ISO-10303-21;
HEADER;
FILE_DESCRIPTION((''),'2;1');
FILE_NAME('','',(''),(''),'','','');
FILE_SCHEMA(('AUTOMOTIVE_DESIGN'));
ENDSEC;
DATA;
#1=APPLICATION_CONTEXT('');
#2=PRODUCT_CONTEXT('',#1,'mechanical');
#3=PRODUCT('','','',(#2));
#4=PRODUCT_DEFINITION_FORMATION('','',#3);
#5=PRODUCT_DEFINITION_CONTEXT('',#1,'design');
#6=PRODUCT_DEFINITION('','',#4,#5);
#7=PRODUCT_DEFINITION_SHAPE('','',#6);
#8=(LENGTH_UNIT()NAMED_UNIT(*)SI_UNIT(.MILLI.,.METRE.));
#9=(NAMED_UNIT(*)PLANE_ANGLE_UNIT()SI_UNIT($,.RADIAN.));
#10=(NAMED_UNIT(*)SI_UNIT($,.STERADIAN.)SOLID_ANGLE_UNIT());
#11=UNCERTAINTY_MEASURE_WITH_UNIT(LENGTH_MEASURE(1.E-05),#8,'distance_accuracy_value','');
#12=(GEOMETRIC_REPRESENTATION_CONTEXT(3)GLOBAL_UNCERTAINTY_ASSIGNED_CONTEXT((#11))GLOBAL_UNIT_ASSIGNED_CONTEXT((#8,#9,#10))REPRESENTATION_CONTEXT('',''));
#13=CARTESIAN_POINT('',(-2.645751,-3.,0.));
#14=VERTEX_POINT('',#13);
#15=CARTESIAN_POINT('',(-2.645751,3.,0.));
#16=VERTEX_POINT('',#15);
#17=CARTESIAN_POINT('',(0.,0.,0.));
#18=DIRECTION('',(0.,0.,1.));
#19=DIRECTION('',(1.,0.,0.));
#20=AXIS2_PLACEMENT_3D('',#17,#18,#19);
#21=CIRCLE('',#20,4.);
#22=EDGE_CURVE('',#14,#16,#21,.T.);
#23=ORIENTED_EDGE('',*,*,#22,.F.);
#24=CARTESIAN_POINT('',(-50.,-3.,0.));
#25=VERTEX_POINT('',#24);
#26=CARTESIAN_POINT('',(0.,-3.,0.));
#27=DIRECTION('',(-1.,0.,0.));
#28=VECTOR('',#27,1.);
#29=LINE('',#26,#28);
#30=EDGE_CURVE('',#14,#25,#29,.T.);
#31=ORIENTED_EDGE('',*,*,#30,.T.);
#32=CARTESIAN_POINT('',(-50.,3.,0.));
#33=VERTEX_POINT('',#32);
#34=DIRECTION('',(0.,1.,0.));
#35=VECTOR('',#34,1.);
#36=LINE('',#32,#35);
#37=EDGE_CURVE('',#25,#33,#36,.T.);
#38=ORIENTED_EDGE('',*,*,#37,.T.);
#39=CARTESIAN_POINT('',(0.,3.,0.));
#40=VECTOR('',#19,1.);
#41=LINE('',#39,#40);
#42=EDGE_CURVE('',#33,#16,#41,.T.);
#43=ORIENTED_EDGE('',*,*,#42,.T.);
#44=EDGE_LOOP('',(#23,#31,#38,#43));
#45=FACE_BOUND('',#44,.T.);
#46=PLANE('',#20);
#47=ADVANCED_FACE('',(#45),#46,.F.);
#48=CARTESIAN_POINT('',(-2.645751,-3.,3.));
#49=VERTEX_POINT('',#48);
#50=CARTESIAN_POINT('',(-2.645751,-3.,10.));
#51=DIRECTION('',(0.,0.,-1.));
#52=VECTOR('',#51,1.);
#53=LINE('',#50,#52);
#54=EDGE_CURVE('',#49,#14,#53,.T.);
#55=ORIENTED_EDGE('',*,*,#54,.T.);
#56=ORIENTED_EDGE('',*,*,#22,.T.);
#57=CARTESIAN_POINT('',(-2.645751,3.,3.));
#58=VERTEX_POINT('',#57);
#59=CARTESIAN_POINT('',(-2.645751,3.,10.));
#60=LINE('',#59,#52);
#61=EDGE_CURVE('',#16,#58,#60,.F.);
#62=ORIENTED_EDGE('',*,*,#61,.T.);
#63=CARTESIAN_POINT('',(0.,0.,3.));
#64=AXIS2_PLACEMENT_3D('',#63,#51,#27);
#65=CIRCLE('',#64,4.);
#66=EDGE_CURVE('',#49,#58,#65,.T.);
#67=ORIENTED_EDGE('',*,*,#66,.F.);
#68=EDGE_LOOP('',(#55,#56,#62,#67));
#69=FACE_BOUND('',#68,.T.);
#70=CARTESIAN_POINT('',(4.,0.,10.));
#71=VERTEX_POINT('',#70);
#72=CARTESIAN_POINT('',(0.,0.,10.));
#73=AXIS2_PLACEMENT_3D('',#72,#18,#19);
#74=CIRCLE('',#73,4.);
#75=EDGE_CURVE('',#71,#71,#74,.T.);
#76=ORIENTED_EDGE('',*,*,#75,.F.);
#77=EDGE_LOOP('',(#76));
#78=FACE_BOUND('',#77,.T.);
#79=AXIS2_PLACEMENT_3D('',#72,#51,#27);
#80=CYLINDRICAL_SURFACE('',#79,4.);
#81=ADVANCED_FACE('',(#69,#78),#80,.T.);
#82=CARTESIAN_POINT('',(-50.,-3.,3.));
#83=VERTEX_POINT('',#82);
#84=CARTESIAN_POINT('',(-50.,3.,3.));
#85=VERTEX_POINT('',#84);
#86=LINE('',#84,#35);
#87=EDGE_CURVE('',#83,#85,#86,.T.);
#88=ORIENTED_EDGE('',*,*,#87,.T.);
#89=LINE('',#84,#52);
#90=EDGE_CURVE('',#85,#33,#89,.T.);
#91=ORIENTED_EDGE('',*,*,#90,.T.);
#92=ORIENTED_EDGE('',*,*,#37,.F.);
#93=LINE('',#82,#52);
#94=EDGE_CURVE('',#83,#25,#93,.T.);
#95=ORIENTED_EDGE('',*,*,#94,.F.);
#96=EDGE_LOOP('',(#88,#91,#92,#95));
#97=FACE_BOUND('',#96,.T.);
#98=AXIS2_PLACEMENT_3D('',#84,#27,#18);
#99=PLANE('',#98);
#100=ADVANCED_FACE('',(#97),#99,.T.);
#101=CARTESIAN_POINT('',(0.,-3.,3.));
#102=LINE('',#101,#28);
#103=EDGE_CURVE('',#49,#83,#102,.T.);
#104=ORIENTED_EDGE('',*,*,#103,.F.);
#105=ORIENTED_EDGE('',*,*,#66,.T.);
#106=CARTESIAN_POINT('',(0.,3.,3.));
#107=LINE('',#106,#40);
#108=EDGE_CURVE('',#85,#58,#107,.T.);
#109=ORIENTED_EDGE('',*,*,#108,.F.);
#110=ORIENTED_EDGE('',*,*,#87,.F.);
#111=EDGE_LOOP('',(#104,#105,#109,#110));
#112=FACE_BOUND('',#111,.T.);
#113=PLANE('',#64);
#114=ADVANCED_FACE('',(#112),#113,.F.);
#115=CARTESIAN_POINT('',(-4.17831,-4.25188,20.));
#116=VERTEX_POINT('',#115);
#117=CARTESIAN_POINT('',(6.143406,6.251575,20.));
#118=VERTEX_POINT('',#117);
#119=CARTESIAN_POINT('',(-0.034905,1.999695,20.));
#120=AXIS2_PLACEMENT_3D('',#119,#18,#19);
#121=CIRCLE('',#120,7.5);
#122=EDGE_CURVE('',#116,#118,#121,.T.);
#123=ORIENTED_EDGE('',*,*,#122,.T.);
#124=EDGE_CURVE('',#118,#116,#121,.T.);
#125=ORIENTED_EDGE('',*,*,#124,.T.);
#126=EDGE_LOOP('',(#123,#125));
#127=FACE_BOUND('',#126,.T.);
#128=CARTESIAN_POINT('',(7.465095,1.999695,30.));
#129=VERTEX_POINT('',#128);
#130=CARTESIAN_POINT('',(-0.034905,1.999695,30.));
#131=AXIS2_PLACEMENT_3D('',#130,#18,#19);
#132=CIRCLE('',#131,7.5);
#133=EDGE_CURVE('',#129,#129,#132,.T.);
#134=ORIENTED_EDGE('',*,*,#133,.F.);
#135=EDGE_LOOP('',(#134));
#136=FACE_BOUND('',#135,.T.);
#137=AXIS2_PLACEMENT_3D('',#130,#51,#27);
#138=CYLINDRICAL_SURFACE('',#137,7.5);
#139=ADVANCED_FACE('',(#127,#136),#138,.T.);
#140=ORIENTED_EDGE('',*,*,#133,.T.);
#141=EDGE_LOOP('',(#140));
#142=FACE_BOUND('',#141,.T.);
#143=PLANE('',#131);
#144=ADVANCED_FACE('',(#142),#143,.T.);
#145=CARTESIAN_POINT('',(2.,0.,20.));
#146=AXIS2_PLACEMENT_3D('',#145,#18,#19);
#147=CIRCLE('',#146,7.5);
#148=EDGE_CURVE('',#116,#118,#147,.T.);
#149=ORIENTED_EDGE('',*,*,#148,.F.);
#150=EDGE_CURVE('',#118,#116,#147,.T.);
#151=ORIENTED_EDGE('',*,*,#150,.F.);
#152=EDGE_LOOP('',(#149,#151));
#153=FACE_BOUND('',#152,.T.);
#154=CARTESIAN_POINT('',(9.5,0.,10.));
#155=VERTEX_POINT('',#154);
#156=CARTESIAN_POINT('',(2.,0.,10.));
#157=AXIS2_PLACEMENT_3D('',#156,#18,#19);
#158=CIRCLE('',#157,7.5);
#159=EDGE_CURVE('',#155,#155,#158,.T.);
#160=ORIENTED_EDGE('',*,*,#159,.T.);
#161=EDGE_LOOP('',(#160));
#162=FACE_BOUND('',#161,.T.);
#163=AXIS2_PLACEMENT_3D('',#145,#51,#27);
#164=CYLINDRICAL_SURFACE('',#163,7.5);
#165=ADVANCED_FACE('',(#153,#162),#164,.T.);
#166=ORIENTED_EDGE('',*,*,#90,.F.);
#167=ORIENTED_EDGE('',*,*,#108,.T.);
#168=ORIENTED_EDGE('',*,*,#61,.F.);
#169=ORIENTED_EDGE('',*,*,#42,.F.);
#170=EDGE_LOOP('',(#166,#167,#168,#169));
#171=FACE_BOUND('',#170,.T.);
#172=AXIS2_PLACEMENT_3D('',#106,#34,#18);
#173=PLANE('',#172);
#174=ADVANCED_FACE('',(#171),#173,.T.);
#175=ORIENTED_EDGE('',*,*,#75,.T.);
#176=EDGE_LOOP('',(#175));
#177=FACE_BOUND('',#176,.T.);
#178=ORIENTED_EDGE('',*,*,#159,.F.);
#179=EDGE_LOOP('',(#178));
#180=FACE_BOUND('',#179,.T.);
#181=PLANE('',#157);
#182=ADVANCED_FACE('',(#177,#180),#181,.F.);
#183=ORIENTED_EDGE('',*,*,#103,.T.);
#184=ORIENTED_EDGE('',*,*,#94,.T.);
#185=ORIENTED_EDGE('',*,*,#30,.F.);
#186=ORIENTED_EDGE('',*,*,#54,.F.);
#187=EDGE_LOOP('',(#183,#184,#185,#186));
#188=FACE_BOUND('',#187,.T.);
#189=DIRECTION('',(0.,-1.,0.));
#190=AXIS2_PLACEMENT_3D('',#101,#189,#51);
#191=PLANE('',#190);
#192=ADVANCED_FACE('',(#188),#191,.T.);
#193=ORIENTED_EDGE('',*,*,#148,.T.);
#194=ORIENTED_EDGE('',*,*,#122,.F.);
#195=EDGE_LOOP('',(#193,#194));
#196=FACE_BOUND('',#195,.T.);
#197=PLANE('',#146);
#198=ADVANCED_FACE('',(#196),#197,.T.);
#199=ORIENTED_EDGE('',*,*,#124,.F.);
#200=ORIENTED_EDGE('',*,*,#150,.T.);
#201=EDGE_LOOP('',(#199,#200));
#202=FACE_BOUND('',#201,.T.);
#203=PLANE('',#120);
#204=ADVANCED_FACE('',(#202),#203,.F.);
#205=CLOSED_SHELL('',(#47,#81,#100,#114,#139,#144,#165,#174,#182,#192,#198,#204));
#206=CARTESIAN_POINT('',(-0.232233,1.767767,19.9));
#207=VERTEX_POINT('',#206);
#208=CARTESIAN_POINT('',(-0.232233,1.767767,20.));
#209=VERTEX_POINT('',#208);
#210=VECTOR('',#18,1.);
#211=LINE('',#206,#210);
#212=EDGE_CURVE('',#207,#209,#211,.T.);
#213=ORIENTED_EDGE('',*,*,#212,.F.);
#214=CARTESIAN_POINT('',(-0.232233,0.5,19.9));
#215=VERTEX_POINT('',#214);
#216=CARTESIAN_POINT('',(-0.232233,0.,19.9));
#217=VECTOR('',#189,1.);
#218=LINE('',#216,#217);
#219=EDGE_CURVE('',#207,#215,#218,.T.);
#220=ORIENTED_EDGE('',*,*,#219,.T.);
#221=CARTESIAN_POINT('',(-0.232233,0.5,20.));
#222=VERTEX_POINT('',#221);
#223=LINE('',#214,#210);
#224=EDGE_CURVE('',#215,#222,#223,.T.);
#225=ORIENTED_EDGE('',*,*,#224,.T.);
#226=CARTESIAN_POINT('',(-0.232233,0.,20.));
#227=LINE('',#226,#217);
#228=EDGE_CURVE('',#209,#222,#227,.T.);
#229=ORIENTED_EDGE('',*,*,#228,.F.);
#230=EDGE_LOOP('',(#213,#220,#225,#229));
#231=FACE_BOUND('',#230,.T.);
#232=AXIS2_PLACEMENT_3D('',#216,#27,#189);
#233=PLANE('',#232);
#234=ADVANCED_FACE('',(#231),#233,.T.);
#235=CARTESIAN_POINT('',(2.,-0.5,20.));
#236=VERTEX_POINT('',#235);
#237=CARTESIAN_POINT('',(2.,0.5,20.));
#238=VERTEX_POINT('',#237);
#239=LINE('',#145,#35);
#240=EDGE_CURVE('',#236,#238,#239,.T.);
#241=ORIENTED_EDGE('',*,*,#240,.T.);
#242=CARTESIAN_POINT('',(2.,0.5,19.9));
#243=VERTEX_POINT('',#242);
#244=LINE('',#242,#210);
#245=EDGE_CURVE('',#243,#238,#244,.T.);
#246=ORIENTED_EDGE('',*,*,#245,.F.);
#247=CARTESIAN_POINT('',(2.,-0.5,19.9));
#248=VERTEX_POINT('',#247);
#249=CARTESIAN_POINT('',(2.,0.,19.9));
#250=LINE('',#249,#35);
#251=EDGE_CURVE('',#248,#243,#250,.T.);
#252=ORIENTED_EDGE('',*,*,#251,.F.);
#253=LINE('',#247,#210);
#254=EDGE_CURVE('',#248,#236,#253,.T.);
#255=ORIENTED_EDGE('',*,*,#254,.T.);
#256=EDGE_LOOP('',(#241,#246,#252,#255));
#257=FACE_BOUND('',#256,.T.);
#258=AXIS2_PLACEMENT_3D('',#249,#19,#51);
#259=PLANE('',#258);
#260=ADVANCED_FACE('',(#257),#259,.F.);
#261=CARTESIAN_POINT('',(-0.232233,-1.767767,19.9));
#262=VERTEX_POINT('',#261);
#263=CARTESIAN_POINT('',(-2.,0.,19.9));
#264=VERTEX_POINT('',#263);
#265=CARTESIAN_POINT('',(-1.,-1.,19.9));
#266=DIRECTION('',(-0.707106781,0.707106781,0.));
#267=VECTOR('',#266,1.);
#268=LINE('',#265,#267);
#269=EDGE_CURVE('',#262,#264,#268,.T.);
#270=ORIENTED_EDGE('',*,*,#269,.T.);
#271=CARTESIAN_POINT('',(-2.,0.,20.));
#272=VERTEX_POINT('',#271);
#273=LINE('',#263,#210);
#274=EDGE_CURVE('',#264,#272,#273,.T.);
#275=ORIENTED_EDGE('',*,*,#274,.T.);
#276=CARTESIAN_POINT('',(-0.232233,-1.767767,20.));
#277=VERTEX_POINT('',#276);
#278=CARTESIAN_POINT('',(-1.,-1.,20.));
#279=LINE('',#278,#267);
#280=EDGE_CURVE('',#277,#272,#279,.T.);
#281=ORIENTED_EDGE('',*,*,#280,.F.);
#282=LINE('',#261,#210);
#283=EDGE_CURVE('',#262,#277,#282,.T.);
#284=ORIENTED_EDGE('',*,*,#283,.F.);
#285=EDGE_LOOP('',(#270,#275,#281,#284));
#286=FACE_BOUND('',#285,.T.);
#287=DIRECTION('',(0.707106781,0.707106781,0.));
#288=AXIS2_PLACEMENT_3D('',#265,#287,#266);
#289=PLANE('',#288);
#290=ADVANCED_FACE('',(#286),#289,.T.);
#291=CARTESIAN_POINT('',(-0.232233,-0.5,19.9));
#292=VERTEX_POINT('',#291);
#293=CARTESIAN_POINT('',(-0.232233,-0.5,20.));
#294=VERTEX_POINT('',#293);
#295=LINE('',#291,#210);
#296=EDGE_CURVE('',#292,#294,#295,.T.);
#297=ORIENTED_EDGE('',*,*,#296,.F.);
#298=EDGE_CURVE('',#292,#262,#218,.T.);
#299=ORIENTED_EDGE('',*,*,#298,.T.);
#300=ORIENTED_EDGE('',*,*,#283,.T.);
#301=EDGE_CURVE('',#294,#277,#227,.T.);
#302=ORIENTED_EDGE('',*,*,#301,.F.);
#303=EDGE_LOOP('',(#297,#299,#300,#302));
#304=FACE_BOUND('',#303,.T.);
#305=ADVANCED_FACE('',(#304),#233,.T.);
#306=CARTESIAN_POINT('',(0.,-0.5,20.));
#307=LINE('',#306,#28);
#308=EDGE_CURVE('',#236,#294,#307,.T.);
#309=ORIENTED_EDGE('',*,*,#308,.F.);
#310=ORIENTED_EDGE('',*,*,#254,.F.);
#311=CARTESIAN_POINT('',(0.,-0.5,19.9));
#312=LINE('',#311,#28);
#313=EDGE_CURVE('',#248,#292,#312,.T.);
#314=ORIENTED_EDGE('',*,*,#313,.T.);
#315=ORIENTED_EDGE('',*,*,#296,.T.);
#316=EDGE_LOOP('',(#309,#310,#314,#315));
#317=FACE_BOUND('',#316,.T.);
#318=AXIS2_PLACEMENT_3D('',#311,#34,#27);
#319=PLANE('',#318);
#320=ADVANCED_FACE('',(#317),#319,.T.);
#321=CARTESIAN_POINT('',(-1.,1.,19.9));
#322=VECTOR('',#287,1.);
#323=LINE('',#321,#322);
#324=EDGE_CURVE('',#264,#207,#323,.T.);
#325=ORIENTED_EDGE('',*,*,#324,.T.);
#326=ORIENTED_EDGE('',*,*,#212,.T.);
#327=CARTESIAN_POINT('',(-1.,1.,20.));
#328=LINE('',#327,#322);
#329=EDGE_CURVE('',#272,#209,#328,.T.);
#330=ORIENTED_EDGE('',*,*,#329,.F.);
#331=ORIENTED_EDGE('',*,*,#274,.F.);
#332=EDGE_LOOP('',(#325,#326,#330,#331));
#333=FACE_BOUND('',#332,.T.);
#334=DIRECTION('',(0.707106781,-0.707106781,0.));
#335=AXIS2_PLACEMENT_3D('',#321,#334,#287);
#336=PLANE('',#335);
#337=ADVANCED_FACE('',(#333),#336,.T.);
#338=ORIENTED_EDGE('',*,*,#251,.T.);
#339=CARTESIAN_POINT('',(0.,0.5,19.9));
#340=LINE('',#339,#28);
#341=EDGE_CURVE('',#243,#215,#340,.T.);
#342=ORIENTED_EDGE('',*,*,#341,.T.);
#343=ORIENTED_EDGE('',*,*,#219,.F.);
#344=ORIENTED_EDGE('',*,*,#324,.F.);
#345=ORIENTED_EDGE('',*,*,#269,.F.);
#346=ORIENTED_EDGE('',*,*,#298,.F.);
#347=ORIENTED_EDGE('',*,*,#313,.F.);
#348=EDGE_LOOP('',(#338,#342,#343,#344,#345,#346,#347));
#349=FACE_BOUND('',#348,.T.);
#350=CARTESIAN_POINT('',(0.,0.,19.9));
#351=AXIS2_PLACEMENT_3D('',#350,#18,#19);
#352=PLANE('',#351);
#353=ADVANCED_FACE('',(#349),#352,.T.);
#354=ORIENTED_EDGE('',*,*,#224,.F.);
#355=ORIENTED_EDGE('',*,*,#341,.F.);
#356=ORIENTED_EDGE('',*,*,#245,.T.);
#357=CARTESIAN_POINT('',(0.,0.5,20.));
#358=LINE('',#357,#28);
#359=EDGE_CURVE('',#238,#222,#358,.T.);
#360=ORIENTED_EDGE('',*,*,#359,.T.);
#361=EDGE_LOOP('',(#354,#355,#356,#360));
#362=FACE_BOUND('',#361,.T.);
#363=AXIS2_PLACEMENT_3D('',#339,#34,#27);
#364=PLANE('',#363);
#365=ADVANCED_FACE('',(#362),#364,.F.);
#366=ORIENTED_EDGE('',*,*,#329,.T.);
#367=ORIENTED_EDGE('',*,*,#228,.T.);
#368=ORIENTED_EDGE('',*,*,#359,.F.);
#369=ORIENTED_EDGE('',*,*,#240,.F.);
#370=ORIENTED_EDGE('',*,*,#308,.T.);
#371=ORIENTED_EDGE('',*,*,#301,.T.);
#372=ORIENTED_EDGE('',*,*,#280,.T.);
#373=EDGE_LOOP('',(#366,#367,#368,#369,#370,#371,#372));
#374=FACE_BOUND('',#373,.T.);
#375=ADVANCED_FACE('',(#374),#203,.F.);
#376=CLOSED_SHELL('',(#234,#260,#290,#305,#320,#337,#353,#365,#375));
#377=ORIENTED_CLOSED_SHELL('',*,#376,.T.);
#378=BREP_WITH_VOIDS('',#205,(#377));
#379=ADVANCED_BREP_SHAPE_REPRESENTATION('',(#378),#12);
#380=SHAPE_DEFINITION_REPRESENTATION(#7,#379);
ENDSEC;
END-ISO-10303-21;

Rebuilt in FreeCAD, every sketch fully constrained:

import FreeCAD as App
import Part
import Sketcher
from FreeCAD import Vector
Q = App.Units.Quantity


def add_polygon(sketch, points):
    """Adds a closed chain of lines whose ends are joined by coincident constraints."""
    first, n = sketch.GeometryCount, len(points)
    for a, b in zip(points, points[1:] + points[:1]):
        sketch.addGeometry(Part.LineSegment(App.Vector(*a, 0), App.Vector(*b, 0)), False)
    for i in range(n):
        sketch.addConstraint(Sketcher.Constraint("Coincident", first + i, 2, first + (i + 1) % n, 1))

doc = App.newDocument("Part")
body = doc.addObject("PartDesign::Body", "Body")

# Sketch on XY plane
sketch1 = body.newObject("Sketcher::SketchObject", "Sketch")
sketch1.AttachmentSupport = (doc.getObject("XY_Plane"), [""])
sketch1.MapMode = "FlatFace"
sketch1.addGeometry(Part.Circle(Vector(0, 0, 0), Vector(0, 0, 1), 4), False)
sketch1.addConstraint(Sketcher.Constraint("Coincident", 0, 3, -1, 1))
sketch1.addConstraint(Sketcher.Constraint("Diameter", 0, Q("8 mm")))
pad1 = body.newObject("PartDesign::Pad", "Pad")
pad1.Profile = sketch1
pad1.Length = 10

# Sketch on XY plane
sketch2 = body.newObject("Sketcher::SketchObject", "Sketch001")
sketch2.AttachmentSupport = (doc.getObject("XY_Plane"), [""])
sketch2.MapMode = "FlatFace"
sketch2.AttachmentOffset = App.Placement(Vector(0, 0, 10), App.Rotation())
sketch2.addGeometry(Part.Circle(Vector(2, 0, 0), Vector(0, 0, 1), 8), False)
sketch2.addConstraint(Sketcher.Constraint("PointOnObject", 0, 3, -1))
sketch2.addConstraint(Sketcher.Constraint("Diameter", 0, Q("15 mm")))
sketch2.addConstraint(Sketcher.Constraint("DistanceX", -1, 1, 0, 3, Q("2 mm")))
pad2 = body.newObject("PartDesign::Pad", "Pad001")
pad2.Profile = sketch2
pad2.Length = 10

# Sketch on XY plane
sketch3 = body.newObject("Sketcher::SketchObject", "Sketch002")
sketch3.AttachmentSupport = (doc.getObject("XY_Plane"), [""])
sketch3.MapMode = "FlatFace"
sketch3.AttachmentOffset = App.Placement(Vector(0, 0, 20), App.Rotation())
add_polygon(sketch3, [(-0.2, 1.8), (-2, 0), (-0.2, -1.8), (-0.2, -0.5), (2, -0.5), (2, 0.5), (-0.2, 0.5)])  # lines 0-6
sketch3.addConstraint(Sketcher.Constraint("Vertical", 2))
sketch3.addConstraint(Sketcher.Constraint("Horizontal", 3))
sketch3.addConstraint(Sketcher.Constraint("Vertical", 4))
sketch3.addConstraint(Sketcher.Constraint("Horizontal", 5))
sketch3.addConstraint(Sketcher.Constraint("Vertical", 6))
sketch3.addConstraint(Sketcher.Constraint("Symmetric", 2, 2, 5, 2, -1))
sketch3.addConstraint(Sketcher.Constraint("PointOnObject", 0, 2, -1))
sketch3.addConstraint(Sketcher.Constraint("Perpendicular", 0, 1))
sketch3.addConstraint(Sketcher.Constraint("Equal", 2, 6))
sketch3.addConstraint(Sketcher.Constraint("DistanceY", 4, 1, 4, 2, Q("1 mm")))
sketch3.addConstraint(Sketcher.Constraint("DistanceX", 0, 2, -1, 1, Q("2 mm")))
sketch3.addConstraint(Sketcher.Constraint("DistanceX", -1, 1, 3, 2, Q("2 mm")))
sketch3.addConstraint(Sketcher.Constraint("Distance", 0, Q("2.5 mm")))
pocket1 = body.newObject("PartDesign::Pocket", "Pocket")
pocket1.Profile = sketch3
pocket1.Length = 0.1

# Sketch on XY plane
sketch4 = body.newObject("Sketcher::SketchObject", "Sketch003")
sketch4.AttachmentSupport = (doc.getObject("XY_Plane"), [""])
sketch4.MapMode = "FlatFace"
sketch4.AttachmentOffset = App.Placement(Vector(0, 0, 20), App.Rotation())
sketch4.addGeometry(Part.Circle(Vector(0, 2, 0), Vector(0, 0, 1), 8), False)
sketch4.addConstraint(Sketcher.Constraint("Diameter", 0, Q("15 mm")))
sketch4.addConstraint(Sketcher.Constraint("DistanceX", 0, 3, -1, 1, Q("0.034905 mm")))
sketch4.addConstraint(Sketcher.Constraint("DistanceY", -1, 1, 0, 3, Q("1.999695 mm")))
pad3 = body.newObject("PartDesign::Pad", "Pad002")
pad3.Profile = sketch4
pad3.Length = 10

# Sketch on XY plane
sketch5 = body.newObject("Sketcher::SketchObject", "Sketch004")
sketch5.AttachmentSupport = (doc.getObject("XY_Plane"), [""])
sketch5.MapMode = "FlatFace"
add_polygon(sketch5, [(0, 3), (0, -3), (-50, -3), (-50, 3)])  # lines 0-3
sketch5.addConstraint(Sketcher.Constraint("Vertical", 0))
sketch5.addConstraint(Sketcher.Constraint("Horizontal", 1))
sketch5.addConstraint(Sketcher.Constraint("Vertical", 2))
sketch5.addConstraint(Sketcher.Constraint("Horizontal", 3))
sketch5.addConstraint(Sketcher.Constraint("Symmetric", 0, 2, 3, 2, -1, 1))
sketch5.addConstraint(Sketcher.Constraint("DistanceX", 1, 2, 1, 1, Q("50 mm")))
sketch5.addConstraint(Sketcher.Constraint("DistanceY", 0, 2, 0, 1, Q("6 mm")))
pad4 = body.newObject("PartDesign::Pad", "Pad003")
pad4.Profile = sketch5
pad4.Length = 3

doc.recompute()
